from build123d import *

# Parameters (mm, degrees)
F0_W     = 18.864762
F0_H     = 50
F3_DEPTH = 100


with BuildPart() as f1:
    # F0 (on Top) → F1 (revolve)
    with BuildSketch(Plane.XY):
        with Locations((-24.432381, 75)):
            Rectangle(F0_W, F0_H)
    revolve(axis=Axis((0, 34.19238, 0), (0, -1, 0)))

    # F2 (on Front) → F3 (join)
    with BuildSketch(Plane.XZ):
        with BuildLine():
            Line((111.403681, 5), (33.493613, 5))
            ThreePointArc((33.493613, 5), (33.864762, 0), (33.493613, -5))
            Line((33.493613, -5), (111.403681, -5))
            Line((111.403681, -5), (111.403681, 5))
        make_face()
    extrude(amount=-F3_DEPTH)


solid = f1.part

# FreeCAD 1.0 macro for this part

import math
import FreeCAD as App
import Part
import Sketcher

V = App.Vector

doc = App.newDocument("Part")
body = doc.addObject("PartDesign::Body", "Body")

# Sketch on XY plane
sketch1 = body.newObject("Sketcher::SketchObject", "Sketch")
sketch1.AttachmentSupport = (doc.getObject("XY_Plane"), [""])
sketch1.MapMode = "FlatFace"
sketch1.addGeometry([
    Part.LineSegment(V(-34, 100, 0), V(-34, 50, 0)),
    Part.LineSegment(V(-34, 50, 0), V(-15, 50, 0)),
    Part.LineSegment(V(-15, 50, 0), V(-15, 100, 0)),
    Part.LineSegment(V(-15, 100, 0), V(-34, 100, 0)),
], False)
sketch1.addConstraint([
    Sketcher.Constraint("Coincident", 0, 2, 1, 1),
    Sketcher.Constraint("Coincident", 1, 2, 2, 1),
    Sketcher.Constraint("Coincident", 2, 2, 3, 1),
    Sketcher.Constraint("Coincident", 3, 2, 0, 1),
    Sketcher.Constraint("Vertical", 0),
    Sketcher.Constraint("Horizontal", 1),
    Sketcher.Constraint("Vertical", 2),
    Sketcher.Constraint("Horizontal", 3),
    Sketcher.Constraint("DistanceY", 0, 2, 0, 1, 50.0),
    Sketcher.Constraint("DistanceY", -1, 1, 0, 2, 50.0),
    Sketcher.Constraint("DistanceX", 1, 2, -1, 1, 15.0),
    Sketcher.Constraint("DistanceX", 1, 1, 1, 2, 18.864762),
])
revolution = body.newObject("PartDesign::Revolution", "Revolution")
revolution.Profile = sketch1
revolution.ReferenceAxis = (sketch1, ["V_Axis"])
revolution.Angle = 360

# Sketch on XZ plane
sketch2 = body.newObject("Sketcher::SketchObject", "Sketch001")
sketch2.AttachmentSupport = (doc.getObject("XZ_Plane"), [""])
sketch2.MapMode = "FlatFace"
sketch2.addGeometry([
    Part.LineSegment(V(111, 5, 0), V(33, 5, 0)),
    Part.ArcOfCircle(Part.Circle(V(0, 0, 0), V(0, 0, 1), 34), math.radians(-8.49), math.radians(8.49)),
    Part.LineSegment(V(33, -5, 0), V(111, -5, 0)),
    Part.LineSegment(V(111, -5, 0), V(111, 5, 0)),
], False)
sketch2.addConstraint([
    Sketcher.Constraint("Coincident", 0, 2, 1, 2),
    Sketcher.Constraint("Coincident", 1, 1, 2, 1),
    Sketcher.Constraint("Coincident", 2, 2, 3, 1),
    Sketcher.Constraint("Coincident", 3, 2, 0, 1),
    Sketcher.Constraint("Horizontal", 0),
    Sketcher.Constraint("Horizontal", 2),
    Sketcher.Constraint("Vertical", 3),
    Sketcher.Constraint("Coincident", 1, 3, -1, 1),
    Sketcher.Constraint("Vertical", 0, 2, 1, 1),
    Sketcher.Constraint("DistanceY", 3, 1, 3, 2, 10.0),
    Sketcher.Constraint("Radius", 1, 33.864771),
    Sketcher.Constraint("DistanceX", 0, 2, 0, 1, 77.910068),
])
pad1 = body.newObject("PartDesign::Pad", "Pad")
pad1.Profile = sketch2
pad1.Length = 100
pad1.Reversed = True

doc.recompute()
